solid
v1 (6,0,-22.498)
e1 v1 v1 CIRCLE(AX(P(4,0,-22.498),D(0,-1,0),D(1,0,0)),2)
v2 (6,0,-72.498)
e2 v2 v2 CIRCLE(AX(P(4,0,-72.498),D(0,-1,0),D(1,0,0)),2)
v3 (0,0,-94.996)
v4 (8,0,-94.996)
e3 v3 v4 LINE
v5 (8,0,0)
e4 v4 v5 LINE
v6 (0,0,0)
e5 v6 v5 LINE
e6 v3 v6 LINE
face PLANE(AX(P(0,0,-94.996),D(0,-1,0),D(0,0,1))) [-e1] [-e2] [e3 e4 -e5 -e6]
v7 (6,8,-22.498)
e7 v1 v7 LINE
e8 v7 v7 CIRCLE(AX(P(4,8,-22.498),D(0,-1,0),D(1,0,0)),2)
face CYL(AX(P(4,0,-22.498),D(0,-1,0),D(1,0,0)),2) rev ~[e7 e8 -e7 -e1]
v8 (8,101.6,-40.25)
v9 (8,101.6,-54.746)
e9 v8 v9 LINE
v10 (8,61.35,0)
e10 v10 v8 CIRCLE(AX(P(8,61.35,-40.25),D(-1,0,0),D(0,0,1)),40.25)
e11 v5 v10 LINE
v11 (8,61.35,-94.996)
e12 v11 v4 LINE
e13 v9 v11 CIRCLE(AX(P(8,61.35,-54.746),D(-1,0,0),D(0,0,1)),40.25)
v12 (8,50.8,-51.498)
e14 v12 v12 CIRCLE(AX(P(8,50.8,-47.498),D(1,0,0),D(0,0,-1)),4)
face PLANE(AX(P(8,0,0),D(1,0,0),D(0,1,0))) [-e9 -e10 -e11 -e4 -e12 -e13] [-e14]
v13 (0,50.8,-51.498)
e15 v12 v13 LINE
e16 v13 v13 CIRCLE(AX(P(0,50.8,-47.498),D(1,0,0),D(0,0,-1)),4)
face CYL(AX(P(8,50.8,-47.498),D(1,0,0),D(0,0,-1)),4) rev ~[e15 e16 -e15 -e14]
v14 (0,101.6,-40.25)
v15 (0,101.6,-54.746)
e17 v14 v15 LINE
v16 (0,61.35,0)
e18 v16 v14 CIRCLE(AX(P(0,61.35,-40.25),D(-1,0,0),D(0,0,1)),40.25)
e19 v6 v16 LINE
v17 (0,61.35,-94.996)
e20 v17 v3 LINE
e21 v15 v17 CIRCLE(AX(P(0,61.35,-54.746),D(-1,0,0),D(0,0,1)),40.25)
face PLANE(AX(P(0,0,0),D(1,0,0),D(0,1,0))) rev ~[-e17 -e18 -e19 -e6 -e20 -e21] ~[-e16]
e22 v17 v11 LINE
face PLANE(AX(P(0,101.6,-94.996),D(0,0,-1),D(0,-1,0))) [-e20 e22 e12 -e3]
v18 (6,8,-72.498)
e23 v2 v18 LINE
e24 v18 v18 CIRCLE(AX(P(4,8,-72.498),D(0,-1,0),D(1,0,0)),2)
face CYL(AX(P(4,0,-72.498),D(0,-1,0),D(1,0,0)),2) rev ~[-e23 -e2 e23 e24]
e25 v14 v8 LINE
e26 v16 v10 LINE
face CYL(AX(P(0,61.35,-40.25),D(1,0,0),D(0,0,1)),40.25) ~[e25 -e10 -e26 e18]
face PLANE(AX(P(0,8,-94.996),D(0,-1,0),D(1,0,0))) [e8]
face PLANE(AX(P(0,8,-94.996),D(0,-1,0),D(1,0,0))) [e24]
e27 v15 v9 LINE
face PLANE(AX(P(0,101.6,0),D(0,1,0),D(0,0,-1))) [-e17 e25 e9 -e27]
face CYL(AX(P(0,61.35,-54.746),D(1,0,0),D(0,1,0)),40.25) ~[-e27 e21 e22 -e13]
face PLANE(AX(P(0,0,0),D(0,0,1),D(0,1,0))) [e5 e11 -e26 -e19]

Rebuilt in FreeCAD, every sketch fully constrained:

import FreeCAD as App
import Part
import Sketcher
from FreeCAD import Vector


def edges_at(feature, points):
    """Names of the edges that pass closest to the given points."""
    edges = feature.Shape.Edges
    near = lambda p: min(range(len(edges)), key=lambda i: edges[i].distToShape(Part.Vertex(*p))[0])
    return sorted({f"Edge{near(p) + 1}" for p in points})

doc = App.newDocument("Part")
body = doc.addObject("PartDesign::Body", "Body")

# Sketch on YZ plane
sketch1 = doc.addObject("Sketcher::SketchObject", "Sketch")
body.addObject(sketch1)
sketch1.AttachmentSupport = (doc.YZ_Plane, [""])
sketch1.MapMode = "FlatFace"
sketch1.addGeometry(Part.LineSegment(Vector(101.6, 0, 0), Vector(0, 0, 0)), False)
sketch1.addGeometry(Part.LineSegment(Vector(0, 0, 0), Vector(0, -94.996, 0)), False)
sketch1.addGeometry(Part.LineSegment(Vector(0, -94.996, 0), Vector(101.6, -94.996, 0)), False)
sketch1.addGeometry(Part.LineSegment(Vector(101.6, -94.996, 0), Vector(101.6, 0, 0)), False)
sketch1.addConstraint(Sketcher.Constraint("Coincident", 0, 2, 1, 1))
sketch1.addConstraint(Sketcher.Constraint("Coincident", 1, 2, 2, 1))
sketch1.addConstraint(Sketcher.Constraint("Coincident", 2, 2, 3, 1))
sketch1.addConstraint(Sketcher.Constraint("Coincident", 3, 2, 0, 1))
sketch1.addConstraint(Sketcher.Constraint("Horizontal", 0))
sketch1.addConstraint(Sketcher.Constraint("Vertical", 1))
sketch1.addConstraint(Sketcher.Constraint("Horizontal", 2))
sketch1.addConstraint(Sketcher.Constraint("Vertical", 3))
sketch1.addConstraint(Sketcher.Constraint("Coincident", 0, 2, -1, 1))
sketch1.addConstraint(Sketcher.Constraint("DistanceX", 0, 2, 0, 1, 101.6))
sketch1.addConstraint(Sketcher.Constraint("DistanceY", 1, 2, 1, 1, 94.996))
pad1 = doc.addObject("PartDesign::Pad", "Pad")
body.addObject(pad1)
pad1.Profile = sketch1
pad1.Length = 8

# Sketch on XZ plane
sketch2 = doc.addObject("Sketcher::SketchObject", "Sketch001")
body.addObject(sketch2)
sketch2.AttachmentSupport = (doc.XZ_Plane, [""])
sketch2.MapMode = "FlatFace"
sketch2.addGeometry(Part.Circle(Vector(4, -22.498, 0), Vector(0, 0, 1), 2), False)
sketch2.addGeometry(Part.Circle(Vector(4, -72.498, 0), Vector(0, 0, 1), 2), False)
sketch2.addConstraint(Sketcher.Constraint("Equal", 0, 1))
sketch2.addConstraint(Sketcher.Constraint("Vertical", 0, 3, 1, 3))
sketch2.addConstraint(Sketcher.Constraint("Diameter", 0, 4.0))
sketch2.addConstraint(Sketcher.Constraint("DistanceX", -1, 1, 0, 3, 4.0))
sketch2.addConstraint(Sketcher.Constraint("DistanceY", 1, 3, 0, 3, 50.0))
sketch2.addConstraint(Sketcher.Constraint("DistanceY", 0, 3, -1, 1, 22.498))
pocket1 = doc.addObject("PartDesign::Pocket", "Pocket")
body.addObject(pocket1)
pocket1.Profile = sketch2
pocket1.Length = 8

# Sketch on YZ plane
sketch3 = doc.addObject("Sketcher::SketchObject", "Sketch002")
body.addObject(sketch3)
sketch3.AttachmentSupport = (doc.YZ_Plane, [""])
sketch3.MapMode = "FlatFace"
sketch3.AttachmentOffset = App.Placement(Vector(0, 0, 8), App.Rotation())
sketch3.addGeometry(Part.Circle(Vector(50.8, -47.498, 0), Vector(0, 0, 1), 4), False)
sketch3.addConstraint(Sketcher.Constraint("Diameter", 0, 8.0))
sketch3.addConstraint(Sketcher.Constraint("DistanceX", -1, 1, 0, 3, 50.8))
sketch3.addConstraint(Sketcher.Constraint("DistanceY", 0, 3, -1, 1, 47.498))
pocket2 = doc.addObject("PartDesign::Pocket", "Pocket001")
body.addObject(pocket2)
pocket2.Profile = sketch3
pocket2.Type = "ThroughAll"
doc.recompute()

fillet = doc.addObject("PartDesign::Fillet", "Fillet")
body.addObject(fillet)
fillet.Base = (pocket2, edges_at(pocket2, [(4, 101.6, 0), (4, 101.6, -94.996)]))
fillet.Radius = 40.25

doc.recompute()
